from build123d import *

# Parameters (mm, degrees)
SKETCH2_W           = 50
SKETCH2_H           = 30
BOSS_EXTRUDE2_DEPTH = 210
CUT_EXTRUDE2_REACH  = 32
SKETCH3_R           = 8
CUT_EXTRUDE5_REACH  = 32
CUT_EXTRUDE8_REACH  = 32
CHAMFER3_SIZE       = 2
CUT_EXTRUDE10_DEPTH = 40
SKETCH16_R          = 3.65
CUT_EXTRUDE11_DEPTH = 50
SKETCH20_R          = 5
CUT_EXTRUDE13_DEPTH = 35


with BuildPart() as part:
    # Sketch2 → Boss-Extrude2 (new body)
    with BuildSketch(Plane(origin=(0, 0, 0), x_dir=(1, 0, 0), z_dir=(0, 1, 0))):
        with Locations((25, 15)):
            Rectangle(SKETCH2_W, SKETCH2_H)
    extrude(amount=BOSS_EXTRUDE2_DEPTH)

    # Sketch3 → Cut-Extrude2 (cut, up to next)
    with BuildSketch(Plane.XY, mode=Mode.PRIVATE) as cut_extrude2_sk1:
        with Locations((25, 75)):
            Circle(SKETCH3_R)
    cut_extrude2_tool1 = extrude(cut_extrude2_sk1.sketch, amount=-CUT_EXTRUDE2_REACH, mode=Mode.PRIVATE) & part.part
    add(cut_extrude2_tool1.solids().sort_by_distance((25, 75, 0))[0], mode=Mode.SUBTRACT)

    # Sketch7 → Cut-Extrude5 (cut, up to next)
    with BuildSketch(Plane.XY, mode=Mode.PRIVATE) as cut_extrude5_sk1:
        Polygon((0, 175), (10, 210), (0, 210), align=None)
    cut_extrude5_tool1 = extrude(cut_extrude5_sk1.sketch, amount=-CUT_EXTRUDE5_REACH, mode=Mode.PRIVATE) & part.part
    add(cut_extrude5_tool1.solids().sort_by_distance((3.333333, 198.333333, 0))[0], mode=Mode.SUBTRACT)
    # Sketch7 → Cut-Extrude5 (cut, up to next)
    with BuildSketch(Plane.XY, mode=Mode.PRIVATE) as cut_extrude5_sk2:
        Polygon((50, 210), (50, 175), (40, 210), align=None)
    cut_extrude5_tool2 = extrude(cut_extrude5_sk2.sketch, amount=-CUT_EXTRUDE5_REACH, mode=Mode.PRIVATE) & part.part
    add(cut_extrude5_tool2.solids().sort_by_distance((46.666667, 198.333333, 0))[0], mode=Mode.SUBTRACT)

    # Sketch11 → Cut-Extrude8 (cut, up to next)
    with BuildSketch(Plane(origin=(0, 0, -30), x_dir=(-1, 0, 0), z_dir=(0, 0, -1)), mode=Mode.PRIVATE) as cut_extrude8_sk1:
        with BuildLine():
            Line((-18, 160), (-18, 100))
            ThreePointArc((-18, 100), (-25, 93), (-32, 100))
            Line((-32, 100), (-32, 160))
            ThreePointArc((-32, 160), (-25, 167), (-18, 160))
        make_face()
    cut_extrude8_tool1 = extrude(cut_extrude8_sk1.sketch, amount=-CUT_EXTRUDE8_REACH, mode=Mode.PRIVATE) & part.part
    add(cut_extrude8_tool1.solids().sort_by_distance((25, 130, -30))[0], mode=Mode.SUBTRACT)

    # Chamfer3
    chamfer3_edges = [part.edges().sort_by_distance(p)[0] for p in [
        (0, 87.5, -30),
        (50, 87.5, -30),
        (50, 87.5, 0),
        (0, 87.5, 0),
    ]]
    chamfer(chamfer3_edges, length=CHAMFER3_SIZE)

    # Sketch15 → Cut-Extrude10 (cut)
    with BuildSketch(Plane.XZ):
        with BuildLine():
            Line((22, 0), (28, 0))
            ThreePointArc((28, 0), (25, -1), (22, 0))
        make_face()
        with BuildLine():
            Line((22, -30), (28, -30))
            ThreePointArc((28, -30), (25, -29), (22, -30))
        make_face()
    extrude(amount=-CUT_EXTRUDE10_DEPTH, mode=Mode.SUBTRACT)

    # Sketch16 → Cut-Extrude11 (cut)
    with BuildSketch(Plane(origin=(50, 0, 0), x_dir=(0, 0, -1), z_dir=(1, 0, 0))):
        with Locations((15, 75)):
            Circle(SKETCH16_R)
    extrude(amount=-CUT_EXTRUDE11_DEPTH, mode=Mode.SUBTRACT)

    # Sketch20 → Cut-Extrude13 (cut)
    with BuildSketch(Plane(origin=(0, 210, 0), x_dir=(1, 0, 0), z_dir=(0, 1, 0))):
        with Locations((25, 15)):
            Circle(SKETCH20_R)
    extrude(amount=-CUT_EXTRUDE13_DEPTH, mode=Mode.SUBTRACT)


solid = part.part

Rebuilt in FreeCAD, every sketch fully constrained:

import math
import FreeCAD as App
import Part
import Sketcher
from FreeCAD import Vector


def edges_at(feature, points):
    """Names of the edges that pass closest to the given points."""
    edges = feature.Shape.Edges
    near = lambda p: min(range(len(edges)), key=lambda i: edges[i].distToShape(Part.Vertex(*p))[0])
    return sorted({f"Edge{near(p) + 1}" for p in points})


def add_polygon(sketch, points):
    """Adds a closed chain of lines whose ends are joined by coincident constraints."""
    first, n = sketch.GeometryCount, len(points)
    for a, b in zip(points, points[1:] + points[:1]):
        sketch.addGeometry(Part.LineSegment(App.Vector(*a, 0), App.Vector(*b, 0)), False)
    for i in range(n):
        sketch.addConstraint(Sketcher.Constraint("Coincident", first + i, 2, first + (i + 1) % n, 1))

doc = App.newDocument("Part")
body = doc.addObject("PartDesign::Body", "Body")

# Sketch on XZ plane
sketch1 = doc.addObject("Sketcher::SketchObject", "Sketch")
body.addObject(sketch1)
sketch1.AttachmentSupport = (doc.XZ_Plane, [""])
sketch1.MapMode = "FlatFace"
add_polygon(sketch1, [(0, -30), (0, 0), (50, 0), (50, -30)])  # lines 0-3
sketch1.addConstraint(Sketcher.Constraint("Vertical", 0))
sketch1.addConstraint(Sketcher.Constraint("Horizontal", 1))
sketch1.addConstraint(Sketcher.Constraint("Vertical", 2))
sketch1.addConstraint(Sketcher.Constraint("Horizontal", 3))
sketch1.addConstraint(Sketcher.Constraint("Coincident", 0, 2, -1, 1))
sketch1.addConstraint(Sketcher.Constraint("DistanceX", 1, 1, 1, 2, 50.0))
sketch1.addConstraint(Sketcher.Constraint("DistanceY", 0, 1, 0, 2, 30.0))
pad1 = doc.addObject("PartDesign::Pad", "Pad")
body.addObject(pad1)
pad1.Profile = sketch1
pad1.Length = 210
pad1.Reversed = True

# Sketch on XY plane
sketch2 = doc.addObject("Sketcher::SketchObject", "Sketch001")
body.addObject(sketch2)
sketch2.AttachmentSupport = (doc.XY_Plane, [""])
sketch2.MapMode = "FlatFace"
sketch2.addGeometry(Part.Circle(Vector(25, 75, 0), Vector(0, 0, 1), 8), False)
sketch2.addConstraint(Sketcher.Constraint("Diameter", 0, 16.0))
sketch2.addConstraint(Sketcher.Constraint("DistanceX", -1, 1, 0, 3, 25.0))
sketch2.addConstraint(Sketcher.Constraint("DistanceY", -1, 1, 0, 3, 75.0))
pocket1 = doc.addObject("PartDesign::Pocket", "Pocket")
body.addObject(pocket1)
pocket1.Profile = sketch2
pocket1.Type = "UpToFirst"

# Sketch on XY plane
sketch3 = doc.addObject("Sketcher::SketchObject", "Sketch002")
body.addObject(sketch3)
sketch3.AttachmentSupport = (doc.XY_Plane, [""])
sketch3.MapMode = "FlatFace"
add_polygon(sketch3, [(0, 175), (10, 210), (0, 210)])  # lines 0-2
sketch3.addConstraint(Sketcher.Constraint("Horizontal", 1))
sketch3.addConstraint(Sketcher.Constraint("Vertical", 2))
sketch3.addConstraint(Sketcher.Constraint("PointOnObject", 1, 2, -2))
sketch3.addConstraint(Sketcher.Constraint("DistanceX", 1, 2, 1, 1, 10.0))
sketch3.addConstraint(Sketcher.Constraint("DistanceY", 2, 2, 2, 1, 35.0))
sketch3.addConstraint(Sketcher.Constraint("DistanceY", -1, 1, 0, 2, 210.0))
pocket2 = doc.addObject("PartDesign::Pocket", "Pocket001")
body.addObject(pocket2)
pocket2.Profile = sketch3
pocket2.Type = "UpToFirst"

# Sketch on XY plane
sketch4 = doc.addObject("Sketcher::SketchObject", "Sketch003")
body.addObject(sketch4)
sketch4.AttachmentSupport = (doc.XY_Plane, [""])
sketch4.MapMode = "FlatFace"
add_polygon(sketch4, [(50, 175), (50, 210), (40, 210)])  # lines 0-2
sketch4.addConstraint(Sketcher.Constraint("Vertical", 0))
sketch4.addConstraint(Sketcher.Constraint("Horizontal", 1))
sketch4.addConstraint(Sketcher.Constraint("DistanceX", 1, 2, 1, 1, 10.0))
sketch4.addConstraint(Sketcher.Constraint("DistanceY", 0, 1, 0, 2, 35.0))
sketch4.addConstraint(Sketcher.Constraint("DistanceX", -1, 1, 0, 2, 50.0))
sketch4.addConstraint(Sketcher.Constraint("DistanceY", -1, 1, 0, 2, 210.0))
pocket3 = doc.addObject("PartDesign::Pocket", "Pocket002")
body.addObject(pocket3)
pocket3.Profile = sketch4
pocket3.Type = "UpToFirst"

# Sketch on XY plane
sketch5 = doc.addObject("Sketcher::SketchObject", "Sketch004")
body.addObject(sketch5)
sketch5.AttachmentSupport = (doc.XY_Plane, [""])
sketch5.MapMode = "FlatFace"
sketch5.AttachmentOffset = App.Placement(Vector(0, 0, -30), App.Rotation())
sketch5.addGeometry(Part.LineSegment(Vector(18, 100, 0), Vector(18, 160, 0)), False)
sketch5.addGeometry(Part.ArcOfCircle(Part.Circle(Vector(25, 160, 0), Vector(0, 0, 1), 7), math.radians(0), math.radians(180)), False)
sketch5.addGeometry(Part.LineSegment(Vector(32, 160, 0), Vector(32, 100, 0)), False)
sketch5.addGeometry(Part.ArcOfCircle(Part.Circle(Vector(25, 100, 0), Vector(0, 0, 1), 7), math.radians(180), math.radians(360)), False)
sketch5.addConstraint(Sketcher.Constraint("Tangent", 0, 2, 1, 2))
sketch5.addConstraint(Sketcher.Constraint("Tangent", 1, 1, 2, 1))
sketch5.addConstraint(Sketcher.Constraint("Tangent", 2, 2, 3, 2))
sketch5.addConstraint(Sketcher.Constraint("Tangent", 3, 1, 0, 1))
sketch5.addConstraint(Sketcher.Constraint("Vertical", 0))
sketch5.addConstraint(Sketcher.Constraint("Vertical", 2))
sketch5.addConstraint(Sketcher.Constraint("Radius", 1, 7.0))
sketch5.addConstraint(Sketcher.Constraint("DistanceY", 0, 1, 0, 2, 60.0))
sketch5.addConstraint(Sketcher.Constraint("DistanceX", -1, 1, 1, 3, 25.0))
sketch5.addConstraint(Sketcher.Constraint("DistanceY", -1, 1, 1, 3, 160.0))
pocket4 = doc.addObject("PartDesign::Pocket", "Pocket003")
body.addObject(pocket4)
pocket4.Profile = sketch5
pocket4.Type = "UpToFirst"
pocket4.Reversed = True
doc.recompute()

chamfer = doc.addObject("PartDesign::Chamfer", "Chamfer")
body.addObject(chamfer)
chamfer.Base = (pocket4, edges_at(pocket4, [
    (0, 87.5, -30),
    (50, 87.5, -30),
    (50, 87.5, 0),
    (0, 87.5, 0),
]))
chamfer.Size = 2

# Sketch on XZ plane
sketch6 = doc.addObject("Sketcher::SketchObject", "Sketch005")
body.addObject(sketch6)
sketch6.AttachmentSupport = (doc.XZ_Plane, [""])
sketch6.MapMode = "FlatFace"
sketch6.addGeometry(Part.LineSegment(Vector(28, 0, 0), Vector(22, 0, 0)), False)
sketch6.addGeometry(Part.ArcOfCircle(Part.Circle(Vector(25, 4, 0), Vector(0, 0, 1), 5), math.radians(-127), math.radians(-53)), False)
sketch6.addGeometry(Part.LineSegment(Vector(22, -30, 0), Vector(28, -30, 0)), False)
sketch6.addGeometry(Part.ArcOfCircle(Part.Circle(Vector(25, -34, 0), Vector(0, 0, 1), 5), math.radians(53), math.radians(127)), False)
sketch6.addConstraint(Sketcher.Constraint("Coincident", 0, 1, 1, 2))
sketch6.addConstraint(Sketcher.Constraint("Coincident", 1, 1, 0, 2))
sketch6.addConstraint(Sketcher.Constraint("Coincident", 2, 1, 3, 2))
sketch6.addConstraint(Sketcher.Constraint("Coincident", 3, 1, 2, 2))
sketch6.addConstraint(Sketcher.Constraint("Horizontal", 0))
sketch6.addConstraint(Sketcher.Constraint("Horizontal", 2))
sketch6.addConstraint(Sketcher.Constraint("Equal", 1, 3))
sketch6.addConstraint(Sketcher.Constraint("PointOnObject", 0, 1, -1))
sketch6.addConstraint(Sketcher.Constraint("Vertical", 1, 3, 3, 3))
sketch6.addConstraint(Sketcher.Constraint("Vertical", 1, 1, 2, 1))
sketch6.addConstraint(Sketcher.Constraint("Radius", 1, 5.0))
sketch6.addConstraint(Sketcher.Constraint("DistanceX", 0, 2, 0, 1, 6.0))
sketch6.addConstraint(Sketcher.Constraint("DistanceX", -1, 1, 1, 3, 25.0))
sketch6.addConstraint(Sketcher.Constraint("DistanceY", 3, 3, -1, 1, 34.0))
pocket5 = doc.addObject("PartDesign::Pocket", "Pocket004")
body.addObject(pocket5)
pocket5.Profile = sketch6
pocket5.Length = 40

# Sketch on YZ plane
sketch7 = doc.addObject("Sketcher::SketchObject", "Sketch006")
body.addObject(sketch7)
sketch7.AttachmentSupport = (doc.YZ_Plane, [""])
sketch7.MapMode = "FlatFace"
sketch7.AttachmentOffset = App.Placement(Vector(0, 0, 50), App.Rotation())
sketch7.addGeometry(Part.Circle(Vector(75, -15, 0), Vector(0, 0, 1), 3.6), False)
sketch7.addConstraint(Sketcher.Constraint("Diameter", 0, 7.3))
sketch7.addConstraint(Sketcher.Constraint("DistanceX", -1, 1, 0, 3, 75.0))
sketch7.addConstraint(Sketcher.Constraint("DistanceY", 0, 3, -1, 1, 15.0))
pocket6 = doc.addObject("PartDesign::Pocket", "Pocket005")
body.addObject(pocket6)
pocket6.Profile = sketch7
pocket6.Length = 50

# Sketch on XZ plane
sketch8 = doc.addObject("Sketcher::SketchObject", "Sketch007")
body.addObject(sketch8)
sketch8.AttachmentSupport = (doc.XZ_Plane, [""])
sketch8.MapMode = "FlatFace"
sketch8.AttachmentOffset = App.Placement(Vector(0, 0, -210), App.Rotation())
sketch8.addGeometry(Part.Circle(Vector(25, -15, 0), Vector(0, 0, 1), 5), False)
sketch8.addConstraint(Sketcher.Constraint("Diameter", 0, 10.0))
sketch8.addConstraint(Sketcher.Constraint("DistanceX", -1, 1, 0, 3, 25.0))
sketch8.addConstraint(Sketcher.Constraint("DistanceY", 0, 3, -1, 1, 15.0))
pocket7 = doc.addObject("PartDesign::Pocket", "Pocket006")
body.addObject(pocket7)
pocket7.Profile = sketch8
pocket7.Length = 35
pocket7.Reversed = True

doc.recompute()
